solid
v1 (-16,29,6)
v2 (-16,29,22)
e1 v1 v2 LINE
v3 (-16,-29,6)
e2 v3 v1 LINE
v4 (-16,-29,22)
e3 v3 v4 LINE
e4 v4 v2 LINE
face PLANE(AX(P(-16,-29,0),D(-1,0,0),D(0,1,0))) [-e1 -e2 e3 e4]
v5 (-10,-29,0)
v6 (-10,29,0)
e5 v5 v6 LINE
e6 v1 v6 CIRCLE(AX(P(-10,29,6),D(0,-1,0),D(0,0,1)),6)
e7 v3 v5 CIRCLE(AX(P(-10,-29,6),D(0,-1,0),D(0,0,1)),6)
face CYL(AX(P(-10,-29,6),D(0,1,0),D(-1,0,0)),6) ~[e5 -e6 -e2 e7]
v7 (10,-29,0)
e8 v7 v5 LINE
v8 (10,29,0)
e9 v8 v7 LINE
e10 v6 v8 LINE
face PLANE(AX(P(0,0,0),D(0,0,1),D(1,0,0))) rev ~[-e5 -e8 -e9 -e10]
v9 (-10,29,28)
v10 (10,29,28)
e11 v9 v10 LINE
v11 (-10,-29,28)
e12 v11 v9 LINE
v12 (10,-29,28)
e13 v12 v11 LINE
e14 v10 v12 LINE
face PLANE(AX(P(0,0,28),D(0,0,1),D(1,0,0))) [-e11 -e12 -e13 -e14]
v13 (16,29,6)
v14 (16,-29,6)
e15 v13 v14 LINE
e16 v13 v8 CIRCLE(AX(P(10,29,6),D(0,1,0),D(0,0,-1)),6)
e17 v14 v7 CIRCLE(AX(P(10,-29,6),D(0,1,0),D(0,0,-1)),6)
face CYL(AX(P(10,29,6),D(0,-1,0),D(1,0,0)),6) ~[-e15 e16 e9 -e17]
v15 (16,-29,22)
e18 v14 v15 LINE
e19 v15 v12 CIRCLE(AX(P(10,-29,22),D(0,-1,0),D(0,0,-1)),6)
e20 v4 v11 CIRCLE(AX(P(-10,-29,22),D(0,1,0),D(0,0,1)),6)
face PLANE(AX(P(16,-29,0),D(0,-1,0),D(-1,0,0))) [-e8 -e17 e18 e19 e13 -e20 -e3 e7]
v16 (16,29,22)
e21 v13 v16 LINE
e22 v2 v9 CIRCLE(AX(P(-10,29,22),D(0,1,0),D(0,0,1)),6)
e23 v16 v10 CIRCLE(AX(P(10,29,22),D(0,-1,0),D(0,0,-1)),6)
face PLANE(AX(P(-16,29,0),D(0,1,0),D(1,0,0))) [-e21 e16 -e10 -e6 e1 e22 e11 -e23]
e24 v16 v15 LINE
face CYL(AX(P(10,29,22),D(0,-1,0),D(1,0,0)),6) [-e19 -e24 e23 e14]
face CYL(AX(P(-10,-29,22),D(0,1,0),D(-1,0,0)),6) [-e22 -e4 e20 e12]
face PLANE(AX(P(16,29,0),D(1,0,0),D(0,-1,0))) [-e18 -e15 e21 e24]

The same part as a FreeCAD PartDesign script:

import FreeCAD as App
import Part
import Sketcher
from FreeCAD import Vector
Q = App.Units.Quantity


def edges_at(feature, points):
    """Names of the edges that pass closest to the given points."""
    edges = feature.Shape.Edges
    near = lambda p: min(range(len(edges)), key=lambda i: edges[i].distToShape(Part.Vertex(*p))[0])
    return sorted({f"Edge{near(p) + 1}" for p in points})


def add_polygon(sketch, points):
    """Adds a closed chain of lines whose ends are joined by coincident constraints."""
    first, n = sketch.GeometryCount, len(points)
    for a, b in zip(points, points[1:] + points[:1]):
        sketch.addGeometry(Part.LineSegment(App.Vector(*a, 0), App.Vector(*b, 0)), False)
    for i in range(n):
        sketch.addConstraint(Sketcher.Constraint("Coincident", first + i, 2, first + (i + 1) % n, 1))

doc = App.newDocument("Part")
params = doc.addObject("Spreadsheet::Sheet", "Params")
for row, (alias, value) in enumerate([
    ("sketch1_width", "32 mm"),
    ("sketch1_height", "58 mm"),
    ("pad1_length", "28 mm"),
    ("fillet_radius", "6 mm"),
], start=1):
    params.set(f"A{row}", alias)
    params.set(f"B{row}", "=" + value)
    params.setAlias(f"B{row}", alias)

body = doc.addObject("PartDesign::Body", "Body")

sketch1 = body.newObject("Sketcher::SketchObject", "Sketch")
sketch1.AttachmentSupport = (doc.getObject("XY_Plane"), [""])
sketch1.MapMode = "FlatFace"
add_polygon(sketch1, [(16, 29), (-16, 29), (-16, -29), (16, -29)])
sketch1.addConstraint(Sketcher.Constraint("Horizontal", 0))
sketch1.addConstraint(Sketcher.Constraint("Vertical", 1))
sketch1.addConstraint(Sketcher.Constraint("Horizontal", 2))
sketch1.addConstraint(Sketcher.Constraint("Vertical", 3))
sketch1.addConstraint(Sketcher.Constraint("Symmetric", 0, 2, 2, 2, -1, 1))
sketch1.addConstraint(Sketcher.Constraint("DistanceX", 0, 2, 0, 1, Q("32 mm")))
sketch1.addConstraint(Sketcher.Constraint("DistanceY", 1, 2, 1, 1, Q("58 mm")))
sketch1.setExpression("Constraints[9]", "Params.sketch1_width")
sketch1.setExpression("Constraints[10]", "Params.sketch1_height")
pad1 = body.newObject("PartDesign::Pad", "Pad")
pad1.Profile = sketch1
pad1.setExpression("Length", "Params.pad1_length")
doc.recompute()

fillet = body.newObject("PartDesign::Fillet", "Fillet")
fillet.Base = (pad1, edges_at(pad1, [
    (16, 0, 28),
    (-16, 0, 28),
    (-16, 0, 0),
    (16, 0, 0),
]))
fillet.setExpression("Radius", "Params.fillet_radius")

doc.recompute()
